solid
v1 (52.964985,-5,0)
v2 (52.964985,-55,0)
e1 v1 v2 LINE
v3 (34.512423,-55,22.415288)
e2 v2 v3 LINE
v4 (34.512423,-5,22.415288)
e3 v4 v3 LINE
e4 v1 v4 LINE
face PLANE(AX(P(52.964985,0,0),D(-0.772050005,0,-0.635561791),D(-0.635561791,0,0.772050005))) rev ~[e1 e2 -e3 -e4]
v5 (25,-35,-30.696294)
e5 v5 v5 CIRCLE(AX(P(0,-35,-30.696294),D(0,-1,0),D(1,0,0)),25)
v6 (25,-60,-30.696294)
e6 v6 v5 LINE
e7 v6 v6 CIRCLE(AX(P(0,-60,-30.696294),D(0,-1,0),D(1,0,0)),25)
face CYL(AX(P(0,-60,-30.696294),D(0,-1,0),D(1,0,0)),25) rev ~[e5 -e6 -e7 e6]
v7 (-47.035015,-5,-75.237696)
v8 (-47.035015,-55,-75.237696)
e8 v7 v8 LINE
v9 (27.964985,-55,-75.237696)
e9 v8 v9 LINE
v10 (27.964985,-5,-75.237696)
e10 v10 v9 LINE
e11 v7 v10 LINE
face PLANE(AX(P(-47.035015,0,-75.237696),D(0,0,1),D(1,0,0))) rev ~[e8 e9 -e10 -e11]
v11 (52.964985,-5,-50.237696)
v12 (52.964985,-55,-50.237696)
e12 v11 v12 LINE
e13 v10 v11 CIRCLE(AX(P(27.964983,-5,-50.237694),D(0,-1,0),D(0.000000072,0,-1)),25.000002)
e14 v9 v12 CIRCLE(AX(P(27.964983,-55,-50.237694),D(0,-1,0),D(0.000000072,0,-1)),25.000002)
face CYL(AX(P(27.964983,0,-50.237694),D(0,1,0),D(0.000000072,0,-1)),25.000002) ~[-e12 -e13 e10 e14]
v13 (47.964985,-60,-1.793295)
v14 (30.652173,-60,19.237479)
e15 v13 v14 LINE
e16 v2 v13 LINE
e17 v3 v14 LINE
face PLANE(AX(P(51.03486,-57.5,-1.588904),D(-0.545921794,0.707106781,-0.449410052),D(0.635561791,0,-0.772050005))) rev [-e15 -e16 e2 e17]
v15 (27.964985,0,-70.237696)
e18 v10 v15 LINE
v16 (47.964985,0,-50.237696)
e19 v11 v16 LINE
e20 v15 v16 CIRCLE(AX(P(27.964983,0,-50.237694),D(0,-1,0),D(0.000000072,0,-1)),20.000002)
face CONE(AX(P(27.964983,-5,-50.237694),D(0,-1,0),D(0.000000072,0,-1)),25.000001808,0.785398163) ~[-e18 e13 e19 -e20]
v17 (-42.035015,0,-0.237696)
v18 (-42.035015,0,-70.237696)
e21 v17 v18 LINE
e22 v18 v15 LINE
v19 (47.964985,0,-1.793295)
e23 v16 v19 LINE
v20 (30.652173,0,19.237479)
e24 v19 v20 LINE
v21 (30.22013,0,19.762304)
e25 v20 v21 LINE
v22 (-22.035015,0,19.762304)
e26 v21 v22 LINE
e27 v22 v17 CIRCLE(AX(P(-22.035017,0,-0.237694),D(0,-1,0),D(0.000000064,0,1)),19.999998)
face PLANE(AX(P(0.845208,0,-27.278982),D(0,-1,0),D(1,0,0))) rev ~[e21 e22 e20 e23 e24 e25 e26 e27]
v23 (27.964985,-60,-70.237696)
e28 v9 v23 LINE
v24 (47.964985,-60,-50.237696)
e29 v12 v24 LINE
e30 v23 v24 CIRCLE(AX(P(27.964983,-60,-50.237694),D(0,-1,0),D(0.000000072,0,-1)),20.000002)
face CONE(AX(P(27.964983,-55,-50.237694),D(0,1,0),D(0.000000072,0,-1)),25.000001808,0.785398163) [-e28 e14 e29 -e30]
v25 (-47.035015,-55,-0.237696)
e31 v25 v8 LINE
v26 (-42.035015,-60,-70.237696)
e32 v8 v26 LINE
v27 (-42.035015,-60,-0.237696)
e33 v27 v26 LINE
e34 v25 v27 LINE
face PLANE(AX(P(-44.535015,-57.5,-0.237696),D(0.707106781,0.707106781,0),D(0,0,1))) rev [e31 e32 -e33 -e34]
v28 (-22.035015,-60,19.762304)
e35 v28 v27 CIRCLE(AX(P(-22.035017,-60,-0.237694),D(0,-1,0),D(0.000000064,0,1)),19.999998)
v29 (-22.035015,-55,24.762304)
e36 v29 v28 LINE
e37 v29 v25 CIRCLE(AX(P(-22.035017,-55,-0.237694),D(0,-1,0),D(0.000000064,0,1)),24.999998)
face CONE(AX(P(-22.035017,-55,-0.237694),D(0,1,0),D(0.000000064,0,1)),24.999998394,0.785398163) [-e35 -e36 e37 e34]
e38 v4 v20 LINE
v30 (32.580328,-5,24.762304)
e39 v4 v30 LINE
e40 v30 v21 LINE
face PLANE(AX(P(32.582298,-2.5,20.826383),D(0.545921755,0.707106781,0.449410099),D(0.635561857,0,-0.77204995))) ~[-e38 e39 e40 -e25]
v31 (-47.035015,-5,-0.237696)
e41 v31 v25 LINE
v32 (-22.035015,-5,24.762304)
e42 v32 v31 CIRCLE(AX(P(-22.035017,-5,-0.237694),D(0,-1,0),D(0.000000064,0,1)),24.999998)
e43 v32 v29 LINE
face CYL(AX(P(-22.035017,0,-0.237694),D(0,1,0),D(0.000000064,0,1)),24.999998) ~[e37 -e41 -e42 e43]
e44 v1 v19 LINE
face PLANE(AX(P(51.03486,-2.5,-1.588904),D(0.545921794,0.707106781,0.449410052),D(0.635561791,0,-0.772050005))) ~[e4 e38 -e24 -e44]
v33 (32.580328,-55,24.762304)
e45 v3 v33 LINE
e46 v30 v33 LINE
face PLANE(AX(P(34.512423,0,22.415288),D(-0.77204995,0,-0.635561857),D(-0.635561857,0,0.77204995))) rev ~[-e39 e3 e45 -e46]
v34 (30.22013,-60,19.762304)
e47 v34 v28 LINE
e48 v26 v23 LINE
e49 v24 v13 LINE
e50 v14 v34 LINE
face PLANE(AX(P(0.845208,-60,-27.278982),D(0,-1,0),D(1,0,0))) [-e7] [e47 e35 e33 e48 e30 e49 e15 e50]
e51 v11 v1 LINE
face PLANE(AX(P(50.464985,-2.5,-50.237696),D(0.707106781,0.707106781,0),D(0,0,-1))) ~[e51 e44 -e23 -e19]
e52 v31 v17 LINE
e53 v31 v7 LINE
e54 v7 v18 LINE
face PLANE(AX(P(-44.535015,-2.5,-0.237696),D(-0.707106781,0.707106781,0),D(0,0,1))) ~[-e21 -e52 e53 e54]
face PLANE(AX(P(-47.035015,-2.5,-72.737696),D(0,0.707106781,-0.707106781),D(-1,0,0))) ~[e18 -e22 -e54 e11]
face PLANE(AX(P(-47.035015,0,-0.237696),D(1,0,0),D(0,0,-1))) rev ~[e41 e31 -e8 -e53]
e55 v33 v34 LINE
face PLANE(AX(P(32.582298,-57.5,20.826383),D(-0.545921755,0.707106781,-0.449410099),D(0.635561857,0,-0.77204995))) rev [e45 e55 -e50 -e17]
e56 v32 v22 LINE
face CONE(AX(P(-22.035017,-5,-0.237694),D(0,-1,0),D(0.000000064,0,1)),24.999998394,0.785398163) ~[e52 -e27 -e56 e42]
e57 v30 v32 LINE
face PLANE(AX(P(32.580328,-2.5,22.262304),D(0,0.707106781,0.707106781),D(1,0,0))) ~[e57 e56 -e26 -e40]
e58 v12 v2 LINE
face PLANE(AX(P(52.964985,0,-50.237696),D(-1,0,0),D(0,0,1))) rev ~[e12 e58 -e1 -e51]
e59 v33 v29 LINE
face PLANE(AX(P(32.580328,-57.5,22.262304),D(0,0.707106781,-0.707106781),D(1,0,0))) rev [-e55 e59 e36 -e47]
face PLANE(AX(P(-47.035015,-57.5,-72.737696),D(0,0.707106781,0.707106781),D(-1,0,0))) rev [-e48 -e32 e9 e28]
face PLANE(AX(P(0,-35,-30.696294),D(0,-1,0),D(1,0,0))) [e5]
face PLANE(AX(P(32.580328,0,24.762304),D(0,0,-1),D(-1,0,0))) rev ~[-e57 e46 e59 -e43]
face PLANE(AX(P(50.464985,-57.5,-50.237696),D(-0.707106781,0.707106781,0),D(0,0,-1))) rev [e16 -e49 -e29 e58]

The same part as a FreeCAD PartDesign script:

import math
import FreeCAD as App
import Part
import Sketcher
Q = App.Units.Quantity


def edges_at(feature, points):
    """Names of the edges that pass closest to the given points."""
    edges = feature.Shape.Edges
    near = lambda p: min(range(len(edges)), key=lambda i: edges[i].distToShape(Part.Vertex(*p))[0])
    return sorted({f"Edge{near(p) + 1}" for p in points})

doc = App.newDocument("Part")
body = doc.addObject("PartDesign::Body", "Body")

# Sketch on XZ plane
sketch1 = body.newObject("Sketcher::SketchObject", "Sketch")
sketch1.AttachmentSupport = (doc.getObject("XZ_Plane"), [""])
sketch1.MapMode = "FlatFace"
sketch1.addGeometry(Part.LineSegment(App.Vector(32.6, 24.8, 0), App.Vector(-22, 24.8, 0)), False)
sketch1.addGeometry(Part.ArcOfCircle(Part.Circle(App.Vector(-22, -0.2, 0), App.Vector(0, 0, 1), 25), math.radians(90), math.radians(180)), False)
sketch1.addGeometry(Part.LineSegment(App.Vector(-47, -0.2, 0), App.Vector(-47, -75.2, 0)), False)
sketch1.addGeometry(Part.LineSegment(App.Vector(-47, -75.2, 0), App.Vector(28, -75.2, 0)), False)
sketch1.addGeometry(Part.ArcOfCircle(Part.Circle(App.Vector(28, -50.2, 0), App.Vector(0, 0, 1), 25), math.radians(-90), math.radians(0)), False)
sketch1.addGeometry(Part.LineSegment(App.Vector(53, -50.2, 0), App.Vector(53, 0, 0)), False)
sketch1.addGeometry(Part.LineSegment(App.Vector(53, 0, 0), App.Vector(34.5, 22.4, 0)), False)
sketch1.addGeometry(Part.LineSegment(App.Vector(34.5, 22.4, 0), App.Vector(32.6, 24.8, 0)), False)
sketch1.addConstraint(Sketcher.Constraint("Tangent", 0, 2, 1, 1))
sketch1.addConstraint(Sketcher.Constraint("Tangent", 1, 2, 2, 1))
sketch1.addConstraint(Sketcher.Constraint("Coincident", 2, 2, 3, 1))
sketch1.addConstraint(Sketcher.Constraint("Tangent", 3, 2, 4, 1))
sketch1.addConstraint(Sketcher.Constraint("Tangent", 4, 2, 5, 1))
sketch1.addConstraint(Sketcher.Constraint("Coincident", 5, 2, 6, 1))
sketch1.addConstraint(Sketcher.Constraint("Coincident", 6, 2, 7, 1))
sketch1.addConstraint(Sketcher.Constraint("Coincident", 7, 2, 0, 1))
sketch1.addConstraint(Sketcher.Constraint("Horizontal", 0))
sketch1.addConstraint(Sketcher.Constraint("Vertical", 2))
sketch1.addConstraint(Sketcher.Constraint("Horizontal", 3))
sketch1.addConstraint(Sketcher.Constraint("Vertical", 5))
sketch1.addConstraint(Sketcher.Constraint("PointOnObject", 5, 2, -1))
sketch1.addConstraint(Sketcher.Constraint("Parallel", 6, 7))
sketch1.addConstraint(Sketcher.Constraint("Equal", 3, 2))
sketch1.addConstraint(Sketcher.Constraint("Radius", 1, Q("24.999998 mm")))
sketch1.addConstraint(Sketcher.Constraint("Radius", 4, Q("25.000002 mm")))
sketch1.addConstraint(Sketcher.Constraint("DistanceX", 3, 1, 3, 2, Q("75 mm")))
sketch1.addConstraint(Sketcher.Constraint("Distance", 7, Q("3.039979 mm")))
sketch1.addConstraint(Sketcher.Constraint("DistanceX", 0, 2, 0, 1, Q("54.615343 mm")))
sketch1.addConstraint(Sketcher.Constraint("DistanceY", 5, 1, 5, 2, Q("50.237696 mm")))
sketch1.addConstraint(Sketcher.Constraint("DistanceX", -1, 1, 7, 2, Q("32.580328 mm")))
pad1 = body.newObject("PartDesign::Pad", "Pad")
pad1.Profile = sketch1
pad1.Length = 60
doc.recompute()

chamfer = body.newObject("PartDesign::Chamfer", "Chamfer")
chamfer.Base = (pad1, edges_at(pad1, [
    (-39.713, -60, 17.44),
    (5.273, -60, 24.762),
    (43.739, -60, 11.208),
    (52.965, -60, -25.119),
    (45.643, -60, -67.915),
    (-9.535, -60, -75.238),
    (-47.035, -60, -37.738),
    (-39.713, 0, 17.44),
    (5.273, 0, 24.762),
    (43.739, 0, 11.208),
    (45.643, 0, -67.915),
    (-9.535, 0, -75.238),
]))
chamfer.Size = 5

# Sketch on XZ plane
sketch2 = body.newObject("Sketcher::SketchObject", "Sketch001")
sketch2.AttachmentSupport = (doc.getObject("XZ_Plane"), [""])
sketch2.MapMode = "FlatFace"
sketch2.AttachmentOffset = App.Placement(App.Vector(0, 0, 60), App.Rotation())
sketch2.addGeometry(Part.Circle(App.Vector(0, -31, 0), App.Vector(0, 0, 1), 25), False)
sketch2.addConstraint(Sketcher.Constraint("PointOnObject", 0, 3, -2))
sketch2.addConstraint(Sketcher.Constraint("Diameter", 0, Q("50 mm")))
sketch2.addConstraint(Sketcher.Constraint("DistanceY", 0, 3, -1, 1, Q("30.696294 mm")))
pocket1 = body.newObject("PartDesign::Pocket", "Pocket")
pocket1.Profile = sketch2
pocket1.Length = 25

doc.recompute()
